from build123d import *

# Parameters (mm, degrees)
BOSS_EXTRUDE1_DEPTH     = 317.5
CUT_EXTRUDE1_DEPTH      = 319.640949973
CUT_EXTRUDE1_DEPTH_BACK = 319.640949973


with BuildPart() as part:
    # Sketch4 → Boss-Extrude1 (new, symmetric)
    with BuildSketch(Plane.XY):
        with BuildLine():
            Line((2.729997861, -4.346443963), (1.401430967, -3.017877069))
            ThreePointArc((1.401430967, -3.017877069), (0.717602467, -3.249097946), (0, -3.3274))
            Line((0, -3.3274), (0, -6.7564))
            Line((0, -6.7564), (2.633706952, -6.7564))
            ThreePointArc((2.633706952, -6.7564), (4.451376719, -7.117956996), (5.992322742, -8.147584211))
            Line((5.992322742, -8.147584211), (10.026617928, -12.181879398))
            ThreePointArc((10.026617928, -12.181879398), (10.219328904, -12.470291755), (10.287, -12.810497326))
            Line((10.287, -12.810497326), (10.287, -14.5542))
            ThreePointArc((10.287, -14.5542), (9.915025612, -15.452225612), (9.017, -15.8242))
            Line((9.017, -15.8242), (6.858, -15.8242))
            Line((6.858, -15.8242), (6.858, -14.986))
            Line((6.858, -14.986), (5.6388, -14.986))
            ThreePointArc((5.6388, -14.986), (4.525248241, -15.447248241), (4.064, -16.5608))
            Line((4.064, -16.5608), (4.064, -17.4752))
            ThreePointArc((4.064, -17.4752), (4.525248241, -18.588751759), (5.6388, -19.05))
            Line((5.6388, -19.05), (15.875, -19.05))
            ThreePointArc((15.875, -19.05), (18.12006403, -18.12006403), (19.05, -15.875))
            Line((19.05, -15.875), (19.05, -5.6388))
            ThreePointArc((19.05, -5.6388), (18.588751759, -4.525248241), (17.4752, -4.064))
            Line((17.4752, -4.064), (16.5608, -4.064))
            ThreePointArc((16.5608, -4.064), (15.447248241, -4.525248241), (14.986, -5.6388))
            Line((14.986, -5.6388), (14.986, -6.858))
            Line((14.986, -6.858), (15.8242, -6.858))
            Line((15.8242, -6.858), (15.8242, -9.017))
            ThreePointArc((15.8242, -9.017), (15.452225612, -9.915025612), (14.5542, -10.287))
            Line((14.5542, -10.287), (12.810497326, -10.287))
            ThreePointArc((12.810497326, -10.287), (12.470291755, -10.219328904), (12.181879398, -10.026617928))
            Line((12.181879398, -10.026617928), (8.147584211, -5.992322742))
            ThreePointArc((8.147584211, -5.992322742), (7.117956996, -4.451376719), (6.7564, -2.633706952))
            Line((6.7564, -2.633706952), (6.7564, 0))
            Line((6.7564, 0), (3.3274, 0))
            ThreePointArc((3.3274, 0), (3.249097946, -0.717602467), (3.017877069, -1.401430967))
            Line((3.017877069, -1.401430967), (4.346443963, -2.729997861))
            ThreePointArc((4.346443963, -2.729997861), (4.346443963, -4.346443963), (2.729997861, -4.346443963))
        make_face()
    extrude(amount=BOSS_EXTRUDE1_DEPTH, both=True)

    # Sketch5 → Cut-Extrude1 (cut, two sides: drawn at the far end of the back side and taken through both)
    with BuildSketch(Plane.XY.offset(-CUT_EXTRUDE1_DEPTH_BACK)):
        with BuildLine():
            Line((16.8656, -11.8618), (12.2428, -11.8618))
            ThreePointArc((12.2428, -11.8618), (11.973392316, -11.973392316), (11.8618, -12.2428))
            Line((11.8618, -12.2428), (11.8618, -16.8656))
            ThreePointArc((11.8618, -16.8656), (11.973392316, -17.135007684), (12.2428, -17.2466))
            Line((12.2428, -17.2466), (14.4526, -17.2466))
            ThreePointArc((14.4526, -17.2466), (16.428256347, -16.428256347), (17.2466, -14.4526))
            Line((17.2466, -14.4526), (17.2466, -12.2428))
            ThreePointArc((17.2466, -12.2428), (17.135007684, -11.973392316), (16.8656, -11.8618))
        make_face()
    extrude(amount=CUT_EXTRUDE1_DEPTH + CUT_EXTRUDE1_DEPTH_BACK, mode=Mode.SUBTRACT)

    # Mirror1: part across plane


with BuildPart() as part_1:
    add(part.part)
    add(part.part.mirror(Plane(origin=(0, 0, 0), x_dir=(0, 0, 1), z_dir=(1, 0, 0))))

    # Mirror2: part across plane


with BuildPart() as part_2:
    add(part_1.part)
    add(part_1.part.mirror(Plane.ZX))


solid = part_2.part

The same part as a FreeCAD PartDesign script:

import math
import FreeCAD as App
import Part
import Sketcher

V = App.Vector
Q = App.Units.Quantity

doc = App.newDocument("Part")
body = doc.addObject("PartDesign::Body", "Body")

sketch1 = doc.addObject("Sketcher::SketchObject", "Sketch")
body.addObject(sketch1)
sketch1.AttachmentSupport = (doc.XY_Plane, [""])
sketch1.MapMode = "FlatFace"
sketch1.addGeometry(Part.LineSegment(V(2.7, -4.3, 0), V(1.4, -3, 0)), False)
sketch1.addGeometry(Part.ArcOfCircle(Part.Circle(V(0, 0, 0), V(0, 0, 1), 3.3), math.radians(-90), math.radians(-65)), False)
sketch1.addGeometry(Part.LineSegment(V(0, -3.3, 0), V(0, -6.8, 0)), False)
sketch1.addGeometry(Part.LineSegment(V(0, -6.8, 0), V(2.6, -6.8, 0)), False)
sketch1.addGeometry(Part.ArcOfCircle(Part.Circle(V(2.6, -11.5, 0), V(0, 0, 1), 4.7), math.radians(45), math.radians(90)), False)
sketch1.addGeometry(Part.LineSegment(V(6, -8.1, 0), V(10, -12.2, 0)), False)
sketch1.addGeometry(Part.ArcOfCircle(Part.Circle(V(9.4, -12.8, 0), V(0, 0, 1), 0.9), math.radians(0), math.radians(45)), False)
sketch1.addGeometry(Part.LineSegment(V(10.3, -12.8, 0), V(10.3, -14.6, 0)), False)
sketch1.addGeometry(Part.ArcOfCircle(Part.Circle(V(9, -14.6, 0), V(0, 0, 1), 1.3), math.radians(-90), math.radians(0)), False)
sketch1.addGeometry(Part.LineSegment(V(9, -15.8, 0), V(6.9, -15.8, 0)), False)
sketch1.addGeometry(Part.LineSegment(V(6.9, -15.8, 0), V(6.9, -15, 0)), False)
sketch1.addGeometry(Part.LineSegment(V(6.9, -15, 0), V(5.6, -15, 0)), False)
sketch1.addGeometry(Part.ArcOfCircle(Part.Circle(V(5.6, -16.6, 0), V(0, 0, 1), 1.6), math.radians(90), math.radians(180)), False)
sketch1.addGeometry(Part.LineSegment(V(4.1, -16.6, 0), V(4.1, -17.5, 0)), False)
sketch1.addGeometry(Part.ArcOfCircle(Part.Circle(V(5.6, -17.5, 0), V(0, 0, 1), 1.6), math.radians(180), math.radians(270)), False)
sketch1.addGeometry(Part.LineSegment(V(5.6, -19.1, 0), V(15.9, -19.1, 0)), False)
sketch1.addGeometry(Part.ArcOfCircle(Part.Circle(V(15.9, -15.9, 0), V(0, 0, 1), 3.2), math.radians(-90), math.radians(0)), False)
sketch1.addGeometry(Part.LineSegment(V(19.1, -15.9, 0), V(19.1, -5.6, 0)), False)
sketch1.addGeometry(Part.ArcOfCircle(Part.Circle(V(17.5, -5.6, 0), V(0, 0, 1), 1.6), math.radians(0), math.radians(90)), False)
sketch1.addGeometry(Part.LineSegment(V(17.5, -4.1, 0), V(16.6, -4.1, 0)), False)
sketch1.addGeometry(Part.ArcOfCircle(Part.Circle(V(16.6, -5.6, 0), V(0, 0, 1), 1.6), math.radians(90), math.radians(180)), False)
sketch1.addGeometry(Part.LineSegment(V(15, -5.6, 0), V(15, -6.9, 0)), False)
sketch1.addGeometry(Part.LineSegment(V(15, -6.9, 0), V(15.8, -6.9, 0)), False)
sketch1.addGeometry(Part.LineSegment(V(15.8, -6.9, 0), V(15.8, -9, 0)), False)
sketch1.addGeometry(Part.ArcOfCircle(Part.Circle(V(14.6, -9, 0), V(0, 0, 1), 1.3), math.radians(-90), math.radians(0)), False)
sketch1.addGeometry(Part.LineSegment(V(14.6, -10.3, 0), V(12.8, -10.3, 0)), False)
sketch1.addGeometry(Part.ArcOfCircle(Part.Circle(V(12.8, -9.4, 0), V(0, 0, 1), 0.9), math.radians(-135), math.radians(-90)), False)
sketch1.addGeometry(Part.LineSegment(V(12.2, -10, 0), V(8.1, -6, 0)), False)
sketch1.addGeometry(Part.ArcOfCircle(Part.Circle(V(11.5, -2.6, 0), V(0, 0, 1), 4.7), math.radians(180), math.radians(225)), False)
sketch1.addGeometry(Part.LineSegment(V(6.8, -2.6, 0), V(6.8, 0, 0)), False)
sketch1.addGeometry(Part.LineSegment(V(6.8, 0, 0), V(3.3, 0, 0)), False)
sketch1.addGeometry(Part.ArcOfCircle(Part.Circle(V(0, 0, 0), V(0, 0, 1), 3.3), math.radians(-25), math.radians(0)), False)
sketch1.addGeometry(Part.LineSegment(V(3, -1.4, 0), V(4.3, -2.7, 0)), False)
sketch1.addGeometry(Part.ArcOfCircle(Part.Circle(V(3.5, -3.5, 0), V(0, 0, 1), 1.1), math.radians(-135), math.radians(45)), False)
sketch1.addConstraint(Sketcher.Constraint("Coincident", 0, 2, 1, 2))
sketch1.addConstraint(Sketcher.Constraint("Coincident", 1, 1, 2, 1))
sketch1.addConstraint(Sketcher.Constraint("Coincident", 2, 2, 3, 1))
sketch1.addConstraint(Sketcher.Constraint("Tangent", 3, 2, 4, 2))
sketch1.addConstraint(Sketcher.Constraint("Tangent", 4, 1, 5, 1))
sketch1.addConstraint(Sketcher.Constraint("Tangent", 5, 2, 6, 2))
sketch1.addConstraint(Sketcher.Constraint("Tangent", 6, 1, 7, 1))
sketch1.addConstraint(Sketcher.Constraint("Tangent", 7, 2, 8, 2))
sketch1.addConstraint(Sketcher.Constraint("Tangent", 8, 1, 9, 1))
sketch1.addConstraint(Sketcher.Constraint("Coincident", 9, 2, 10, 1))
sketch1.addConstraint(Sketcher.Constraint("Coincident", 10, 2, 11, 1))
sketch1.addConstraint(Sketcher.Constraint("Tangent", 11, 2, 12, 1))
sketch1.addConstraint(Sketcher.Constraint("Tangent", 12, 2, 13, 1))
sketch1.addConstraint(Sketcher.Constraint("Tangent", 13, 2, 14, 1))
sketch1.addConstraint(Sketcher.Constraint("Tangent", 14, 2, 15, 1))
sketch1.addConstraint(Sketcher.Constraint("Tangent", 15, 2, 16, 1))
sketch1.addConstraint(Sketcher.Constraint("Tangent", 16, 2, 17, 1))
sketch1.addConstraint(Sketcher.Constraint("Tangent", 17, 2, 18, 1))
sketch1.addConstraint(Sketcher.Constraint("Tangent", 18, 2, 19, 1))
sketch1.addConstraint(Sketcher.Constraint("Tangent", 19, 2, 20, 1))
sketch1.addConstraint(Sketcher.Constraint("Tangent", 20, 2, 21, 1))
sketch1.addConstraint(Sketcher.Constraint("Coincident", 21, 2, 22, 1))
sketch1.addConstraint(Sketcher.Constraint("Coincident", 22, 2, 23, 1))
sketch1.addConstraint(Sketcher.Constraint("Tangent", 23, 2, 24, 2))
sketch1.addConstraint(Sketcher.Constraint("Tangent", 24, 1, 25, 1))
sketch1.addConstraint(Sketcher.Constraint("Tangent", 25, 2, 26, 2))
sketch1.addConstraint(Sketcher.Constraint("Tangent", 26, 1, 27, 1))
sketch1.addConstraint(Sketcher.Constraint("Tangent", 27, 2, 28, 2))
sketch1.addConstraint(Sketcher.Constraint("Tangent", 28, 1, 29, 1))
sketch1.addConstraint(Sketcher.Constraint("Coincident", 29, 2, 30, 1))
sketch1.addConstraint(Sketcher.Constraint("Coincident", 30, 2, 31, 2))
sketch1.addConstraint(Sketcher.Constraint("Coincident", 31, 1, 32, 1))
sketch1.addConstraint(Sketcher.Constraint("Tangent", 32, 2, 33, 2))
sketch1.addConstraint(Sketcher.Constraint("Tangent", 33, 1, 0, 1))
sketch1.addConstraint(Sketcher.Constraint("Vertical", 2))
sketch1.addConstraint(Sketcher.Constraint("Horizontal", 3))
sketch1.addConstraint(Sketcher.Constraint("Vertical", 7))
sketch1.addConstraint(Sketcher.Constraint("Horizontal", 9))
sketch1.addConstraint(Sketcher.Constraint("Vertical", 10))
sketch1.addConstraint(Sketcher.Constraint("Horizontal", 11))
sketch1.addConstraint(Sketcher.Constraint("Vertical", 13))
sketch1.addConstraint(Sketcher.Constraint("Horizontal", 15))
sketch1.addConstraint(Sketcher.Constraint("Vertical", 17))
sketch1.addConstraint(Sketcher.Constraint("Horizontal", 19))
sketch1.addConstraint(Sketcher.Constraint("Vertical", 21))
sketch1.addConstraint(Sketcher.Constraint("Horizontal", 22))
sketch1.addConstraint(Sketcher.Constraint("Vertical", 23))
sketch1.addConstraint(Sketcher.Constraint("Horizontal", 25))
sketch1.addConstraint(Sketcher.Constraint("Vertical", 29))
sketch1.addConstraint(Sketcher.Constraint("Horizontal", 30))
sketch1.addConstraint(Sketcher.Constraint("Coincident", 1, 3, -1, 1))
sketch1.addConstraint(Sketcher.Constraint("Coincident", 31, 3, -1, 1))
sketch1.addConstraint(Sketcher.Constraint("Equal", 12, 14))
sketch1.addConstraint(Sketcher.Constraint("Equal", 14, 18))
sketch1.addConstraint(Sketcher.Constraint("Equal", 18, 20))
sketch1.addConstraint(Sketcher.Constraint("Equal", 8, 24))
sketch1.addConstraint(Sketcher.Constraint("Equal", 6, 26))
sketch1.addConstraint(Sketcher.Constraint("Equal", 4, 28))
sketch1.addConstraint(Sketcher.Constraint("Equal", 1, 31))
sketch1.addConstraint(Sketcher.Constraint("PointOnObject", 1, 1, -2))
sketch1.addConstraint(Sketcher.Constraint("PointOnObject", 29, 2, -1))
sketch1.addConstraint(Sketcher.Constraint("Parallel", 0, 5))
sketch1.addConstraint(Sketcher.Constraint("Parallel", 5, 27))
sketch1.addConstraint(Sketcher.Constraint("Parallel", 27, 32))
sketch1.addConstraint(Sketcher.Constraint("Equal", 30, 2))
sketch1.addConstraint(Sketcher.Constraint("Equal", 25, 7))
sketch1.addConstraint(Sketcher.Constraint("Equal", 22, 10))
sketch1.addConstraint(Sketcher.Constraint("Equal", 19, 13))
sketch1.addConstraint(Sketcher.Constraint("Equal", 15, 17))
sketch1.addConstraint(Sketcher.Constraint("Equal", 11, 21))
sketch1.addConstraint(Sketcher.Constraint("Equal", 9, 23))
sketch1.addConstraint(Sketcher.Constraint("Equal", 3, 29))
sketch1.addConstraint(Sketcher.Constraint("Equal", 5, 27))
sketch1.addConstraint(Sketcher.Constraint("Equal", 0, 32))
sketch1.addConstraint(Sketcher.Constraint("Radius", 8, Q("0.05 in")))
sketch1.addConstraint(Sketcher.Constraint("Radius", 1, Q("0.131 in")))
sketch1.addConstraint(Sketcher.Constraint("Radius", 4, Q("0.187 in")))
sketch1.addConstraint(Sketcher.Constraint("Radius", 6, Q("0.035 in")))
sketch1.addConstraint(Sketcher.Constraint("Radius", 12, Q("0.062 in")))
sketch1.addConstraint(Sketcher.Constraint("Radius", 16, Q("0.125 in")))
sketch1.addConstraint(Sketcher.Constraint("Radius", 33, Q("0.045 in")))
sketch1.addConstraint(Sketcher.Constraint("DistanceX", 9, 2, 9, 1, Q("0.085 in")))
sketch1.addConstraint(Sketcher.Constraint("DistanceX", 11, 2, 11, 1, Q("0.048 in")))
sketch1.addConstraint(Sketcher.Constraint("DistanceX", 15, 1, 15, 2, Q("0.403 in")))
sketch1.addConstraint(Sketcher.Constraint("DistanceX", 19, 2, 19, 1, Q("0.036 in")))
sketch1.addConstraint(Sketcher.Constraint("DistanceX", 22, 1, 22, 2, Q("0.033 in")))
sketch1.addConstraint(Sketcher.Constraint("DistanceX", 30, 2, 30, 1, Q("0.135 in")))
sketch1.addConstraint(Sketcher.Constraint("DistanceX", -1, 1, 6, 3, Q("0.37 in")))
sketch1.addConstraint(Sketcher.Constraint("DistanceX", -1, 1, 33, 3, Q("0.1393 in")))
sketch1.addConstraint(Sketcher.Constraint("DistanceX", 33, 3, 4, 1, 2.454102))
pad1 = doc.addObject("PartDesign::Pad", "Pad")
body.addObject(pad1)
pad1.Profile = sketch1
pad1.Length = Q("25 in")
pad1.Midplane = True

sketch2 = doc.addObject("Sketcher::SketchObject", "Sketch001")
body.addObject(sketch2)
sketch2.AttachmentSupport = (doc.XY_Plane, [""])
sketch2.MapMode = "FlatFace"
sketch2.addGeometry(Part.LineSegment(V(16.87, -11.86, 0), V(12.24, -11.86, 0)), False)
sketch2.addGeometry(Part.ArcOfCircle(Part.Circle(V(12.24, -12.24, 0), V(0, 0, 1), 0.38), math.radians(90), math.radians(180)), False)
sketch2.addGeometry(Part.LineSegment(V(11.86, -12.24, 0), V(11.86, -16.87, 0)), False)
sketch2.addGeometry(Part.ArcOfCircle(Part.Circle(V(12.24, -16.87, 0), V(0, 0, 1), 0.38), math.radians(180), math.radians(270)), False)
sketch2.addGeometry(Part.LineSegment(V(12.24, -17.25, 0), V(14.45, -17.25, 0)), False)
sketch2.addGeometry(Part.ArcOfCircle(Part.Circle(V(14.45, -14.45, 0), V(0, 0, 1), 2.79), math.radians(-90), math.radians(0)), False)
sketch2.addGeometry(Part.LineSegment(V(17.25, -14.45, 0), V(17.25, -12.24, 0)), False)
sketch2.addGeometry(Part.ArcOfCircle(Part.Circle(V(16.87, -12.24, 0), V(0, 0, 1), 0.38), math.radians(0), math.radians(90)), False)
sketch2.addConstraint(Sketcher.Constraint("Tangent", 0, 2, 1, 1))
sketch2.addConstraint(Sketcher.Constraint("Tangent", 1, 2, 2, 1))
sketch2.addConstraint(Sketcher.Constraint("Tangent", 2, 2, 3, 1))
sketch2.addConstraint(Sketcher.Constraint("Tangent", 3, 2, 4, 1))
sketch2.addConstraint(Sketcher.Constraint("Tangent", 4, 2, 5, 1))
sketch2.addConstraint(Sketcher.Constraint("Tangent", 5, 2, 6, 1))
sketch2.addConstraint(Sketcher.Constraint("Tangent", 6, 2, 7, 1))
sketch2.addConstraint(Sketcher.Constraint("Tangent", 7, 2, 0, 1))
sketch2.addConstraint(Sketcher.Constraint("Horizontal", 0))
sketch2.addConstraint(Sketcher.Constraint("Vertical", 2))
sketch2.addConstraint(Sketcher.Constraint("Horizontal", 4))
sketch2.addConstraint(Sketcher.Constraint("Vertical", 6))
sketch2.addConstraint(Sketcher.Constraint("Equal", 1, 3))
sketch2.addConstraint(Sketcher.Constraint("Equal", 3, 7))
sketch2.addConstraint(Sketcher.Constraint("Equal", 0, 2))
sketch2.addConstraint(Sketcher.Constraint("Radius", 5, Q("0.11 in")))
sketch2.addConstraint(Sketcher.Constraint("Radius", 1, Q("0.015 in")))
sketch2.addConstraint(Sketcher.Constraint("DistanceX", 0, 2, 0, 1, Q("0.182 in")))
sketch2.addConstraint(Sketcher.Constraint("DistanceX", -1, 1, 1, 3, Q("0.482 in")))
sketch2.addConstraint(Sketcher.Constraint("DistanceY", 1, 3, -1, 1, Q("0.482 in")))
pocket1 = doc.addObject("PartDesign::Pocket", "Pocket")
body.addObject(pocket1)
pocket1.Profile = sketch2
pocket1.Type = "ThroughAll"
pocket1.Midplane = True
body2 = doc.addObject("PartDesign::Body", "Body001")
doc.recompute()

body2.BaseFeature = body
doc.recompute()

mirroring = doc.addObject("Part::Mirroring", "Mirroring")
mirroring.Source = body
mirroring.Base = V(0, 0, 0)
mirroring.Normal = V(1, 0, 0)
body3 = doc.addObject("PartDesign::Body", "Body002")
body3.BaseFeature = mirroring
boolean = doc.addObject("PartDesign::Boolean", "Boolean")
body2.addObject(boolean)
boolean.Type = "Fuse"
boolean.addObjects([body3])
doc.recompute()
body4 = doc.addObject("PartDesign::Body", "Body003")
doc.recompute()

body4.BaseFeature = body2
doc.recompute()

mirroring2 = doc.addObject("Part::Mirroring", "Mirroring001")
mirroring2.Source = body2
mirroring2.Base = V(0, 0, 0)
mirroring2.Normal = V(0, 1, 0)
body5 = doc.addObject("PartDesign::Body", "Body004")
body5.BaseFeature = mirroring2
boolean2 = doc.addObject("PartDesign::Boolean", "Boolean001")
body4.addObject(boolean2)
boolean2.Type = "Fuse"
boolean2.addObjects([body5])
doc.recompute()
mirroring.Visibility = False
mirroring2.Visibility = False

doc.recompute()
